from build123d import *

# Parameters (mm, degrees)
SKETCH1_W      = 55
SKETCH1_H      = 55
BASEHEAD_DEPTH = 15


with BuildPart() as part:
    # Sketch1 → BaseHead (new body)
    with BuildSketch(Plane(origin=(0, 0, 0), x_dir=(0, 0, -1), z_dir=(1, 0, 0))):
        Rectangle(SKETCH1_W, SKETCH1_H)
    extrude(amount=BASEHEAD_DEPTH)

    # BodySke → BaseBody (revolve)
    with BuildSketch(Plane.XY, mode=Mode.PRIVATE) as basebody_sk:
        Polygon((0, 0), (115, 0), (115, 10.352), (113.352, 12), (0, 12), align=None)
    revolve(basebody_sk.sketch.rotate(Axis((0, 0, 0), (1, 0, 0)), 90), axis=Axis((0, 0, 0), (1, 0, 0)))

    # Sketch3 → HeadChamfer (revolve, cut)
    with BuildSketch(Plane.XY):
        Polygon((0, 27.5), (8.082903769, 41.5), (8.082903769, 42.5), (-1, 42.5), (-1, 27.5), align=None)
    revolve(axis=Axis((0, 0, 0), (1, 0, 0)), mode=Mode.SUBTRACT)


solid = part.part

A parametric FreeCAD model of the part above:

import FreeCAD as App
import Part
import Sketcher

V = App.Vector
Q = App.Units.Quantity

doc = App.newDocument("Part")
body = doc.addObject("PartDesign::Body", "Body")

# Sketch on YZ plane
sketch1 = body.newObject("Sketcher::SketchObject", "Sketch")
sketch1.AttachmentSupport = (doc.getObject("YZ_Plane"), [""])
sketch1.MapMode = "FlatFace"
sketch1.addGeometry(Part.LineSegment(V(28, 28, 0), V(-28, 28, 0)), False)
sketch1.addGeometry(Part.LineSegment(V(-28, 28, 0), V(-28, -28, 0)), False)
sketch1.addGeometry(Part.LineSegment(V(-28, -28, 0), V(28, -28, 0)), False)
sketch1.addGeometry(Part.LineSegment(V(28, -28, 0), V(28, 28, 0)), False)
sketch1.addConstraint(Sketcher.Constraint("Coincident", 0, 2, 1, 1))
sketch1.addConstraint(Sketcher.Constraint("Coincident", 1, 2, 2, 1))
sketch1.addConstraint(Sketcher.Constraint("Coincident", 2, 2, 3, 1))
sketch1.addConstraint(Sketcher.Constraint("Coincident", 3, 2, 0, 1))
sketch1.addConstraint(Sketcher.Constraint("Horizontal", 0))
sketch1.addConstraint(Sketcher.Constraint("Vertical", 1))
sketch1.addConstraint(Sketcher.Constraint("Horizontal", 2))
sketch1.addConstraint(Sketcher.Constraint("Vertical", 3))
sketch1.addConstraint(Sketcher.Constraint("Symmetric", 0, 2, 2, 2, -1, 1))
sketch1.addConstraint(Sketcher.Constraint("Equal", 2, 1))
sketch1.addConstraint(Sketcher.Constraint("DistanceX", 0, 2, 0, 1, 55.0))
pad1 = body.newObject("PartDesign::Pad", "Pad")
pad1.Profile = sketch1
pad1.Length = 15

# Sketch on XY plane
sketch2 = body.newObject("Sketcher::SketchObject", "Sketch001")
sketch2.AttachmentSupport = (doc.getObject("XY_Plane"), [""])
sketch2.MapMode = "FlatFace"
sketch2.addGeometry(Part.LineSegment(V(0, 0, 0), V(115, 0, 0)), False)
sketch2.addGeometry(Part.LineSegment(V(115, 0, 0), V(115, 10.4, 0)), False)
sketch2.addGeometry(Part.LineSegment(V(115, 10.4, 0), V(113.4, 12, 0)), False)
sketch2.addGeometry(Part.LineSegment(V(113.4, 12, 0), V(0, 12, 0)), False)
sketch2.addGeometry(Part.LineSegment(V(0, 12, 0), V(0, 0, 0)), False)
sketch2.addConstraint(Sketcher.Constraint("Coincident", 0, 2, 1, 1))
sketch2.addConstraint(Sketcher.Constraint("Coincident", 1, 2, 2, 1))
sketch2.addConstraint(Sketcher.Constraint("Coincident", 2, 2, 3, 1))
sketch2.addConstraint(Sketcher.Constraint("Coincident", 3, 2, 4, 1))
sketch2.addConstraint(Sketcher.Constraint("Coincident", 4, 2, 0, 1))
sketch2.addConstraint(Sketcher.Constraint("Horizontal", 0))
sketch2.addConstraint(Sketcher.Constraint("Vertical", 1))
sketch2.addConstraint(Sketcher.Constraint("Horizontal", 3))
sketch2.addConstraint(Sketcher.Constraint("Vertical", 4))
sketch2.addConstraint(Sketcher.Constraint("Coincident", 4, 2, -1, 1))
sketch2.addConstraint(Sketcher.Constraint("DistanceX", 0, 1, 0, 2, 115.0))
sketch2.addConstraint(Sketcher.Constraint("DistanceY", 4, 2, 4, 1, 12.0))
sketch2.addConstraint(Sketcher.Constraint("Angle", 2, Q("135 deg")))
sketch2.addConstraint(Sketcher.Constraint("DistanceX", 3, 2, 3, 1, 113.352))
revolution = body.newObject("PartDesign::Revolution", "Revolution")
revolution.Profile = sketch2
revolution.ReferenceAxis = (sketch2, ["H_Axis"])
revolution.Angle = 360

# Sketch on XY plane
sketch3 = body.newObject("Sketcher::SketchObject", "Sketch002")
sketch3.AttachmentSupport = (doc.getObject("XY_Plane"), [""])
sketch3.MapMode = "FlatFace"
sketch3.addGeometry(Part.LineSegment(V(0, 27.5, 0), V(8.1, 41.5, 0)), False)
sketch3.addGeometry(Part.LineSegment(V(8.1, 41.5, 0), V(8.1, 42.5, 0)), False)
sketch3.addGeometry(Part.LineSegment(V(8.1, 42.5, 0), V(-1, 42.5, 0)), False)
sketch3.addGeometry(Part.LineSegment(V(-1, 42.5, 0), V(-1, 27.5, 0)), False)
sketch3.addGeometry(Part.LineSegment(V(-1, 27.5, 0), V(0, 27.5, 0)), False)
sketch3.addConstraint(Sketcher.Constraint("Coincident", 0, 2, 1, 1))
sketch3.addConstraint(Sketcher.Constraint("Coincident", 1, 2, 2, 1))
sketch3.addConstraint(Sketcher.Constraint("Coincident", 2, 2, 3, 1))
sketch3.addConstraint(Sketcher.Constraint("Coincident", 3, 2, 4, 1))
sketch3.addConstraint(Sketcher.Constraint("Coincident", 4, 2, 0, 1))
sketch3.addConstraint(Sketcher.Constraint("Vertical", 1))
sketch3.addConstraint(Sketcher.Constraint("Horizontal", 2))
sketch3.addConstraint(Sketcher.Constraint("Vertical", 3))
sketch3.addConstraint(Sketcher.Constraint("Horizontal", 4))
sketch3.addConstraint(Sketcher.Constraint("PointOnObject", 4, 2, -2))
sketch3.addConstraint(Sketcher.Constraint("Equal", 4, 1))
sketch3.addConstraint(Sketcher.Constraint("DistanceX", 4, 1, 4, 2, 1.0))
sketch3.addConstraint(Sketcher.Constraint("DistanceY", 3, 2, 3, 1, 15.0))
sketch3.addConstraint(Sketcher.Constraint("Angle", 0, Q("60 deg")))
sketch3.addConstraint(Sketcher.Constraint("DistanceY", -1, 1, 0, 2, 41.5))
groove = body.newObject("PartDesign::Groove", "Groove")
groove.Profile = sketch3
groove.ReferenceAxis = (sketch3, ["H_Axis"])
groove.Angle = 360

doc.recompute()
